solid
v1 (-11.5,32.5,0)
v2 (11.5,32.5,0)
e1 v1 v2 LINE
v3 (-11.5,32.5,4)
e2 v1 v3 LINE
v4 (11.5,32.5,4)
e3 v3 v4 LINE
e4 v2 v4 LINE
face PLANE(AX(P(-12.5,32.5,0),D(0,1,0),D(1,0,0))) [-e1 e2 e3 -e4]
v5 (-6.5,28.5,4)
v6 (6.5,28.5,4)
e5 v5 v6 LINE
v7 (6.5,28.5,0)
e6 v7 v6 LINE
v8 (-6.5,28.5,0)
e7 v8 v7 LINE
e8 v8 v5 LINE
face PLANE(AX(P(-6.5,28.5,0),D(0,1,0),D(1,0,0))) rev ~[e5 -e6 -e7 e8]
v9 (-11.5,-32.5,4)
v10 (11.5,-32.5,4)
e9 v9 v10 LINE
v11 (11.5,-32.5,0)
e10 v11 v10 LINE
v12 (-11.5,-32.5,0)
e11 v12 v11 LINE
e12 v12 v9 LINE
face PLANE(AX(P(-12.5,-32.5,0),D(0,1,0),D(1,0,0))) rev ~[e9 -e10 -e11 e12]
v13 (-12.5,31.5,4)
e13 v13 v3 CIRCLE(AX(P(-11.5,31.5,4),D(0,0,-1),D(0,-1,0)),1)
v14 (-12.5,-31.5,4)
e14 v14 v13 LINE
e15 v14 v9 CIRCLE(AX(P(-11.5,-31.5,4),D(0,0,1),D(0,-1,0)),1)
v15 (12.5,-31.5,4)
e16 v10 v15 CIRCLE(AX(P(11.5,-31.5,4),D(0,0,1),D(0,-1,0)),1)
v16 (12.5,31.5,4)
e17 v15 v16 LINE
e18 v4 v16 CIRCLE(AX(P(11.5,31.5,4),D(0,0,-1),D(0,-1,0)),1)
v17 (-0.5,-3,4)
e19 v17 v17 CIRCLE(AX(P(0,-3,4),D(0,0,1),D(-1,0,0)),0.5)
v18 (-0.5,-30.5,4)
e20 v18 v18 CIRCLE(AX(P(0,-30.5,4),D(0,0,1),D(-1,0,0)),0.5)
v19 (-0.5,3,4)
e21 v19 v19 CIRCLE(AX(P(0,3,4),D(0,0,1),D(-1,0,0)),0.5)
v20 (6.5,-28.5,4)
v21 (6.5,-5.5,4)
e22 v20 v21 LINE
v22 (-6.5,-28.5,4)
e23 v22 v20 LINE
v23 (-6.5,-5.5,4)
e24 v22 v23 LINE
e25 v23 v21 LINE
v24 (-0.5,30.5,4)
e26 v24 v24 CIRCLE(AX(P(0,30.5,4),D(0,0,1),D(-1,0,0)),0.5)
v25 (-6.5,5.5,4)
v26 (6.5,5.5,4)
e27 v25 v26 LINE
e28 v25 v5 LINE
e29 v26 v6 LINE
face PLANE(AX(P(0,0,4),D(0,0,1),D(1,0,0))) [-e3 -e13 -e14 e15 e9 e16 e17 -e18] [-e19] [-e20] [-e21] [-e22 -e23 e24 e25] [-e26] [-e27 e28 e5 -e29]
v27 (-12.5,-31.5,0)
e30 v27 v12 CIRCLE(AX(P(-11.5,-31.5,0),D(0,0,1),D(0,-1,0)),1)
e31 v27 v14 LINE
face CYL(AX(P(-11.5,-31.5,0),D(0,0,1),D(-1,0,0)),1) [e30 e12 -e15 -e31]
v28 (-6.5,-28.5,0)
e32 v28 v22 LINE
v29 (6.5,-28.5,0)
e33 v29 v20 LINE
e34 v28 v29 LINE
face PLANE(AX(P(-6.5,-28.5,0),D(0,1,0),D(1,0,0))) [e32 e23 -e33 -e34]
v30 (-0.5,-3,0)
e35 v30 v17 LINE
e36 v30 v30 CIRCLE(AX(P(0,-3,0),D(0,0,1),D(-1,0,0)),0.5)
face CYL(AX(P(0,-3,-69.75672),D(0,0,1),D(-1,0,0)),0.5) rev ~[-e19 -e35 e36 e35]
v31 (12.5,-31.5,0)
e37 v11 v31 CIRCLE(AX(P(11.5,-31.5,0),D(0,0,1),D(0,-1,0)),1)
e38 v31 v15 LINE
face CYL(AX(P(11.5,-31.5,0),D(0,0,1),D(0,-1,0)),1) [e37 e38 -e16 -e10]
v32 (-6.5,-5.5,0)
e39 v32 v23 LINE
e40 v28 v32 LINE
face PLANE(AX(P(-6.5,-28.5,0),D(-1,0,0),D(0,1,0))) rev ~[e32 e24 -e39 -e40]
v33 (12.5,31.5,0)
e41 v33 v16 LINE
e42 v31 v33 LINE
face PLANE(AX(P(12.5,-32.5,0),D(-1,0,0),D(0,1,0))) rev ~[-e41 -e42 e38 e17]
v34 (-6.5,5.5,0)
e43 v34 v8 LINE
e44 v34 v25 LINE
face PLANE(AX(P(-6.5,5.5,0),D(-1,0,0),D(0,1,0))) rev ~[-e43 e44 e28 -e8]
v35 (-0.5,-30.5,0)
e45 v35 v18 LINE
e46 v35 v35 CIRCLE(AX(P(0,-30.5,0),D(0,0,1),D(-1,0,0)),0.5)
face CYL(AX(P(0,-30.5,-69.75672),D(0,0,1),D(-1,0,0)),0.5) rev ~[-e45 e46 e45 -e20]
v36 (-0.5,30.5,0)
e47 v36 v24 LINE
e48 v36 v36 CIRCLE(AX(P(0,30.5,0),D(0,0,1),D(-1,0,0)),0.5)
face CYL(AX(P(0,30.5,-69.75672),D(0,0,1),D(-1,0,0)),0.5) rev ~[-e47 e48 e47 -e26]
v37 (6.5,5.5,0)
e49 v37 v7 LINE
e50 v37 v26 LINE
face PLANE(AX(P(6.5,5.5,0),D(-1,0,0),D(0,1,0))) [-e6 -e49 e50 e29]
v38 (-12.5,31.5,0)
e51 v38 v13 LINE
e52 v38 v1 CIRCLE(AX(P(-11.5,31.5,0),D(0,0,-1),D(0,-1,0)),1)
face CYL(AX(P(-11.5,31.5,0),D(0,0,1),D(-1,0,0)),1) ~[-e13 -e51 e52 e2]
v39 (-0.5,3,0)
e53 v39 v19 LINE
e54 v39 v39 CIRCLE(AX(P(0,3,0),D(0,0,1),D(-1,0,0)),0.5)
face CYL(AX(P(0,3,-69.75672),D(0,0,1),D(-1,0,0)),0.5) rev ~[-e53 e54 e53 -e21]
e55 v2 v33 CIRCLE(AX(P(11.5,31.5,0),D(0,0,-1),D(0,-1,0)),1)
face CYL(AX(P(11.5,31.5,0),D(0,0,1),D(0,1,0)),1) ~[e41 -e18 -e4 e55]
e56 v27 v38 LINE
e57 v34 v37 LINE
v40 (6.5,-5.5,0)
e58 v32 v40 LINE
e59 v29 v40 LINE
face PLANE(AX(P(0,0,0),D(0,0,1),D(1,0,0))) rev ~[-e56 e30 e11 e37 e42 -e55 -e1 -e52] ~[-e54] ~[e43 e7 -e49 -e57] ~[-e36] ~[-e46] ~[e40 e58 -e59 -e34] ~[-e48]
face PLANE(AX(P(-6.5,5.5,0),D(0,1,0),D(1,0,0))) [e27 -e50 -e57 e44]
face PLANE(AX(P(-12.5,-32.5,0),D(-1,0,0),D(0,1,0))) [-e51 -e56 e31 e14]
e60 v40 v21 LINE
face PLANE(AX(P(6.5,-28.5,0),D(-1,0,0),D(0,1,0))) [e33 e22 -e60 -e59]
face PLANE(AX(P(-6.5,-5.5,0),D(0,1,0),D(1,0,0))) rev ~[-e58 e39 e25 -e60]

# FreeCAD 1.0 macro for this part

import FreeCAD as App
import Part
import Sketcher


def edges_at(feature, points):
    """Names of the edges that pass closest to the given points."""
    edges = feature.Shape.Edges
    near = lambda p: min(range(len(edges)), key=lambda i: edges[i].distToShape(Part.Vertex(*p))[0])
    return sorted({f"Edge{near(p) + 1}" for p in points})

doc = App.newDocument("Part")
body = doc.addObject("PartDesign::Body", "Body")

# Sketch on XY plane
sketch1 = body.newObject("Sketcher::SketchObject", "Sketch")
sketch1.AttachmentSupport = (doc.getObject("XY_Plane"), [""])
sketch1.MapMode = "FlatFace"
sketch1.addGeometry(Part.LineSegment(App.Vector(-12, 32, 0), App.Vector(-12, -32, 0)), False)
sketch1.addGeometry(Part.LineSegment(App.Vector(-12, -32, 0), App.Vector(12, -32, 0)), False)
sketch1.addGeometry(Part.LineSegment(App.Vector(12, -32, 0), App.Vector(12, 32, 0)), False)
sketch1.addGeometry(Part.LineSegment(App.Vector(12, 32, 0), App.Vector(-12, 32, 0)), False)
sketch1.addGeometry(Part.LineSegment(App.Vector(6, -28, 0), App.Vector(-6, -28, 0)), False)
sketch1.addGeometry(Part.LineSegment(App.Vector(-6, -28, 0), App.Vector(-6, -6, 0)), False)
sketch1.addGeometry(Part.LineSegment(App.Vector(-6, -6, 0), App.Vector(6, -6, 0)), False)
sketch1.addGeometry(Part.LineSegment(App.Vector(6, -6, 0), App.Vector(6, -28, 0)), False)
sketch1.addGeometry(Part.LineSegment(App.Vector(6, 6, 0), App.Vector(-6, 6, 0)), False)
sketch1.addGeometry(Part.LineSegment(App.Vector(-6, 6, 0), App.Vector(-6, 28, 0)), False)
sketch1.addGeometry(Part.LineSegment(App.Vector(-6, 28, 0), App.Vector(6, 28, 0)), False)
sketch1.addGeometry(Part.LineSegment(App.Vector(6, 28, 0), App.Vector(6, 6, 0)), False)
sketch1.addConstraint(Sketcher.Constraint("Coincident", 0, 2, 1, 1))
sketch1.addConstraint(Sketcher.Constraint("Coincident", 1, 2, 2, 1))
sketch1.addConstraint(Sketcher.Constraint("Coincident", 2, 2, 3, 1))
sketch1.addConstraint(Sketcher.Constraint("Coincident", 3, 2, 0, 1))
sketch1.addConstraint(Sketcher.Constraint("Coincident", 4, 2, 5, 1))
sketch1.addConstraint(Sketcher.Constraint("Coincident", 5, 2, 6, 1))
sketch1.addConstraint(Sketcher.Constraint("Coincident", 6, 2, 7, 1))
sketch1.addConstraint(Sketcher.Constraint("Coincident", 7, 2, 4, 1))
sketch1.addConstraint(Sketcher.Constraint("Coincident", 8, 2, 9, 1))
sketch1.addConstraint(Sketcher.Constraint("Coincident", 9, 2, 10, 1))
sketch1.addConstraint(Sketcher.Constraint("Coincident", 10, 2, 11, 1))
sketch1.addConstraint(Sketcher.Constraint("Coincident", 11, 2, 8, 1))
sketch1.addConstraint(Sketcher.Constraint("Vertical", 0))
sketch1.addConstraint(Sketcher.Constraint("Horizontal", 1))
sketch1.addConstraint(Sketcher.Constraint("Vertical", 2))
sketch1.addConstraint(Sketcher.Constraint("Horizontal", 3))
sketch1.addConstraint(Sketcher.Constraint("Horizontal", 4))
sketch1.addConstraint(Sketcher.Constraint("Vertical", 5))
sketch1.addConstraint(Sketcher.Constraint("Horizontal", 6))
sketch1.addConstraint(Sketcher.Constraint("Vertical", 7))
sketch1.addConstraint(Sketcher.Constraint("Horizontal", 8))
sketch1.addConstraint(Sketcher.Constraint("Vertical", 9))
sketch1.addConstraint(Sketcher.Constraint("Horizontal", 10))
sketch1.addConstraint(Sketcher.Constraint("Vertical", 11))
sketch1.addConstraint(Sketcher.Constraint("Symmetric", 0, 2, 2, 2, -1, 1))
sketch1.addConstraint(Sketcher.Constraint("Symmetric", 6, 2, 8, 2, -1, 1))
sketch1.addConstraint(Sketcher.Constraint("Symmetric", 4, 2, 10, 2, -1, 1))
sketch1.addConstraint(Sketcher.Constraint("Vertical", 5, 2, 8, 2))
sketch1.addConstraint(Sketcher.Constraint("DistanceX", 1, 1, 1, 2, 25.0))
sketch1.addConstraint(Sketcher.Constraint("DistanceX", 4, 2, 4, 1, 13.0))
sketch1.addConstraint(Sketcher.Constraint("DistanceY", 0, 2, 0, 1, 65.0))
sketch1.addConstraint(Sketcher.Constraint("DistanceY", 5, 1, 5, 2, 23.0))
sketch1.addConstraint(Sketcher.Constraint("DistanceY", 0, 2, 4, 2, 4.0))
pad1 = body.newObject("PartDesign::Pad", "Pad")
pad1.Profile = sketch1
pad1.Length = 4

# Sketch on XY plane
sketch2 = body.newObject("Sketcher::SketchObject", "Sketch001")
sketch2.AttachmentSupport = (doc.getObject("XY_Plane"), [""])
sketch2.MapMode = "FlatFace"
sketch2.addGeometry(Part.Circle(App.Vector(0, -30.5, 0), App.Vector(0, 0, 1), 0.5), False)
sketch2.addGeometry(Part.Circle(App.Vector(0, -3, 0), App.Vector(0, 0, 1), 0.5), False)
sketch2.addGeometry(Part.Circle(App.Vector(0, 3, 0), App.Vector(0, 0, 1), 0.5), False)
sketch2.addGeometry(Part.Circle(App.Vector(0, 30.5, 0), App.Vector(0, 0, 1), 0.5), False)
sketch2.addConstraint(Sketcher.Constraint("Equal", 0, 1))
sketch2.addConstraint(Sketcher.Constraint("Equal", 1, 2))
sketch2.addConstraint(Sketcher.Constraint("Equal", 2, 3))
sketch2.addConstraint(Sketcher.Constraint("Symmetric", 1, 3, 2, 3, -1, 1))
sketch2.addConstraint(Sketcher.Constraint("Symmetric", 0, 3, 3, 3, -1, 1))
sketch2.addConstraint(Sketcher.Constraint("PointOnObject", 0, 3, -2))
sketch2.addConstraint(Sketcher.Constraint("PointOnObject", 1, 3, -2))
sketch2.addConstraint(Sketcher.Constraint("Diameter", 0, 1.0))
sketch2.addConstraint(Sketcher.Constraint("DistanceY", 1, 3, -1, 1, 3.0))
sketch2.addConstraint(Sketcher.Constraint("DistanceY", 0, 3, 3, 3, 61.0))
doc.recompute()
hole = body.newObject("PartDesign::Hole", "Hole")
hole.Profile = sketch2
hole.ThreadType = "None"
hole.Diameter = 1
hole.DepthType = "ThroughAll"
hole.Reversed = True
doc.recompute()

fillet = body.newObject("PartDesign::Fillet", "Fillet")
fillet.Base = (hole, edges_at(hole, [
    (-12.5, 32.5, 2),
    (12.5, 32.5, 2),
    (-12.5, -32.5, 2),
    (12.5, -32.5, 2),
]))
fillet.Radius = 1

doc.recompute()
